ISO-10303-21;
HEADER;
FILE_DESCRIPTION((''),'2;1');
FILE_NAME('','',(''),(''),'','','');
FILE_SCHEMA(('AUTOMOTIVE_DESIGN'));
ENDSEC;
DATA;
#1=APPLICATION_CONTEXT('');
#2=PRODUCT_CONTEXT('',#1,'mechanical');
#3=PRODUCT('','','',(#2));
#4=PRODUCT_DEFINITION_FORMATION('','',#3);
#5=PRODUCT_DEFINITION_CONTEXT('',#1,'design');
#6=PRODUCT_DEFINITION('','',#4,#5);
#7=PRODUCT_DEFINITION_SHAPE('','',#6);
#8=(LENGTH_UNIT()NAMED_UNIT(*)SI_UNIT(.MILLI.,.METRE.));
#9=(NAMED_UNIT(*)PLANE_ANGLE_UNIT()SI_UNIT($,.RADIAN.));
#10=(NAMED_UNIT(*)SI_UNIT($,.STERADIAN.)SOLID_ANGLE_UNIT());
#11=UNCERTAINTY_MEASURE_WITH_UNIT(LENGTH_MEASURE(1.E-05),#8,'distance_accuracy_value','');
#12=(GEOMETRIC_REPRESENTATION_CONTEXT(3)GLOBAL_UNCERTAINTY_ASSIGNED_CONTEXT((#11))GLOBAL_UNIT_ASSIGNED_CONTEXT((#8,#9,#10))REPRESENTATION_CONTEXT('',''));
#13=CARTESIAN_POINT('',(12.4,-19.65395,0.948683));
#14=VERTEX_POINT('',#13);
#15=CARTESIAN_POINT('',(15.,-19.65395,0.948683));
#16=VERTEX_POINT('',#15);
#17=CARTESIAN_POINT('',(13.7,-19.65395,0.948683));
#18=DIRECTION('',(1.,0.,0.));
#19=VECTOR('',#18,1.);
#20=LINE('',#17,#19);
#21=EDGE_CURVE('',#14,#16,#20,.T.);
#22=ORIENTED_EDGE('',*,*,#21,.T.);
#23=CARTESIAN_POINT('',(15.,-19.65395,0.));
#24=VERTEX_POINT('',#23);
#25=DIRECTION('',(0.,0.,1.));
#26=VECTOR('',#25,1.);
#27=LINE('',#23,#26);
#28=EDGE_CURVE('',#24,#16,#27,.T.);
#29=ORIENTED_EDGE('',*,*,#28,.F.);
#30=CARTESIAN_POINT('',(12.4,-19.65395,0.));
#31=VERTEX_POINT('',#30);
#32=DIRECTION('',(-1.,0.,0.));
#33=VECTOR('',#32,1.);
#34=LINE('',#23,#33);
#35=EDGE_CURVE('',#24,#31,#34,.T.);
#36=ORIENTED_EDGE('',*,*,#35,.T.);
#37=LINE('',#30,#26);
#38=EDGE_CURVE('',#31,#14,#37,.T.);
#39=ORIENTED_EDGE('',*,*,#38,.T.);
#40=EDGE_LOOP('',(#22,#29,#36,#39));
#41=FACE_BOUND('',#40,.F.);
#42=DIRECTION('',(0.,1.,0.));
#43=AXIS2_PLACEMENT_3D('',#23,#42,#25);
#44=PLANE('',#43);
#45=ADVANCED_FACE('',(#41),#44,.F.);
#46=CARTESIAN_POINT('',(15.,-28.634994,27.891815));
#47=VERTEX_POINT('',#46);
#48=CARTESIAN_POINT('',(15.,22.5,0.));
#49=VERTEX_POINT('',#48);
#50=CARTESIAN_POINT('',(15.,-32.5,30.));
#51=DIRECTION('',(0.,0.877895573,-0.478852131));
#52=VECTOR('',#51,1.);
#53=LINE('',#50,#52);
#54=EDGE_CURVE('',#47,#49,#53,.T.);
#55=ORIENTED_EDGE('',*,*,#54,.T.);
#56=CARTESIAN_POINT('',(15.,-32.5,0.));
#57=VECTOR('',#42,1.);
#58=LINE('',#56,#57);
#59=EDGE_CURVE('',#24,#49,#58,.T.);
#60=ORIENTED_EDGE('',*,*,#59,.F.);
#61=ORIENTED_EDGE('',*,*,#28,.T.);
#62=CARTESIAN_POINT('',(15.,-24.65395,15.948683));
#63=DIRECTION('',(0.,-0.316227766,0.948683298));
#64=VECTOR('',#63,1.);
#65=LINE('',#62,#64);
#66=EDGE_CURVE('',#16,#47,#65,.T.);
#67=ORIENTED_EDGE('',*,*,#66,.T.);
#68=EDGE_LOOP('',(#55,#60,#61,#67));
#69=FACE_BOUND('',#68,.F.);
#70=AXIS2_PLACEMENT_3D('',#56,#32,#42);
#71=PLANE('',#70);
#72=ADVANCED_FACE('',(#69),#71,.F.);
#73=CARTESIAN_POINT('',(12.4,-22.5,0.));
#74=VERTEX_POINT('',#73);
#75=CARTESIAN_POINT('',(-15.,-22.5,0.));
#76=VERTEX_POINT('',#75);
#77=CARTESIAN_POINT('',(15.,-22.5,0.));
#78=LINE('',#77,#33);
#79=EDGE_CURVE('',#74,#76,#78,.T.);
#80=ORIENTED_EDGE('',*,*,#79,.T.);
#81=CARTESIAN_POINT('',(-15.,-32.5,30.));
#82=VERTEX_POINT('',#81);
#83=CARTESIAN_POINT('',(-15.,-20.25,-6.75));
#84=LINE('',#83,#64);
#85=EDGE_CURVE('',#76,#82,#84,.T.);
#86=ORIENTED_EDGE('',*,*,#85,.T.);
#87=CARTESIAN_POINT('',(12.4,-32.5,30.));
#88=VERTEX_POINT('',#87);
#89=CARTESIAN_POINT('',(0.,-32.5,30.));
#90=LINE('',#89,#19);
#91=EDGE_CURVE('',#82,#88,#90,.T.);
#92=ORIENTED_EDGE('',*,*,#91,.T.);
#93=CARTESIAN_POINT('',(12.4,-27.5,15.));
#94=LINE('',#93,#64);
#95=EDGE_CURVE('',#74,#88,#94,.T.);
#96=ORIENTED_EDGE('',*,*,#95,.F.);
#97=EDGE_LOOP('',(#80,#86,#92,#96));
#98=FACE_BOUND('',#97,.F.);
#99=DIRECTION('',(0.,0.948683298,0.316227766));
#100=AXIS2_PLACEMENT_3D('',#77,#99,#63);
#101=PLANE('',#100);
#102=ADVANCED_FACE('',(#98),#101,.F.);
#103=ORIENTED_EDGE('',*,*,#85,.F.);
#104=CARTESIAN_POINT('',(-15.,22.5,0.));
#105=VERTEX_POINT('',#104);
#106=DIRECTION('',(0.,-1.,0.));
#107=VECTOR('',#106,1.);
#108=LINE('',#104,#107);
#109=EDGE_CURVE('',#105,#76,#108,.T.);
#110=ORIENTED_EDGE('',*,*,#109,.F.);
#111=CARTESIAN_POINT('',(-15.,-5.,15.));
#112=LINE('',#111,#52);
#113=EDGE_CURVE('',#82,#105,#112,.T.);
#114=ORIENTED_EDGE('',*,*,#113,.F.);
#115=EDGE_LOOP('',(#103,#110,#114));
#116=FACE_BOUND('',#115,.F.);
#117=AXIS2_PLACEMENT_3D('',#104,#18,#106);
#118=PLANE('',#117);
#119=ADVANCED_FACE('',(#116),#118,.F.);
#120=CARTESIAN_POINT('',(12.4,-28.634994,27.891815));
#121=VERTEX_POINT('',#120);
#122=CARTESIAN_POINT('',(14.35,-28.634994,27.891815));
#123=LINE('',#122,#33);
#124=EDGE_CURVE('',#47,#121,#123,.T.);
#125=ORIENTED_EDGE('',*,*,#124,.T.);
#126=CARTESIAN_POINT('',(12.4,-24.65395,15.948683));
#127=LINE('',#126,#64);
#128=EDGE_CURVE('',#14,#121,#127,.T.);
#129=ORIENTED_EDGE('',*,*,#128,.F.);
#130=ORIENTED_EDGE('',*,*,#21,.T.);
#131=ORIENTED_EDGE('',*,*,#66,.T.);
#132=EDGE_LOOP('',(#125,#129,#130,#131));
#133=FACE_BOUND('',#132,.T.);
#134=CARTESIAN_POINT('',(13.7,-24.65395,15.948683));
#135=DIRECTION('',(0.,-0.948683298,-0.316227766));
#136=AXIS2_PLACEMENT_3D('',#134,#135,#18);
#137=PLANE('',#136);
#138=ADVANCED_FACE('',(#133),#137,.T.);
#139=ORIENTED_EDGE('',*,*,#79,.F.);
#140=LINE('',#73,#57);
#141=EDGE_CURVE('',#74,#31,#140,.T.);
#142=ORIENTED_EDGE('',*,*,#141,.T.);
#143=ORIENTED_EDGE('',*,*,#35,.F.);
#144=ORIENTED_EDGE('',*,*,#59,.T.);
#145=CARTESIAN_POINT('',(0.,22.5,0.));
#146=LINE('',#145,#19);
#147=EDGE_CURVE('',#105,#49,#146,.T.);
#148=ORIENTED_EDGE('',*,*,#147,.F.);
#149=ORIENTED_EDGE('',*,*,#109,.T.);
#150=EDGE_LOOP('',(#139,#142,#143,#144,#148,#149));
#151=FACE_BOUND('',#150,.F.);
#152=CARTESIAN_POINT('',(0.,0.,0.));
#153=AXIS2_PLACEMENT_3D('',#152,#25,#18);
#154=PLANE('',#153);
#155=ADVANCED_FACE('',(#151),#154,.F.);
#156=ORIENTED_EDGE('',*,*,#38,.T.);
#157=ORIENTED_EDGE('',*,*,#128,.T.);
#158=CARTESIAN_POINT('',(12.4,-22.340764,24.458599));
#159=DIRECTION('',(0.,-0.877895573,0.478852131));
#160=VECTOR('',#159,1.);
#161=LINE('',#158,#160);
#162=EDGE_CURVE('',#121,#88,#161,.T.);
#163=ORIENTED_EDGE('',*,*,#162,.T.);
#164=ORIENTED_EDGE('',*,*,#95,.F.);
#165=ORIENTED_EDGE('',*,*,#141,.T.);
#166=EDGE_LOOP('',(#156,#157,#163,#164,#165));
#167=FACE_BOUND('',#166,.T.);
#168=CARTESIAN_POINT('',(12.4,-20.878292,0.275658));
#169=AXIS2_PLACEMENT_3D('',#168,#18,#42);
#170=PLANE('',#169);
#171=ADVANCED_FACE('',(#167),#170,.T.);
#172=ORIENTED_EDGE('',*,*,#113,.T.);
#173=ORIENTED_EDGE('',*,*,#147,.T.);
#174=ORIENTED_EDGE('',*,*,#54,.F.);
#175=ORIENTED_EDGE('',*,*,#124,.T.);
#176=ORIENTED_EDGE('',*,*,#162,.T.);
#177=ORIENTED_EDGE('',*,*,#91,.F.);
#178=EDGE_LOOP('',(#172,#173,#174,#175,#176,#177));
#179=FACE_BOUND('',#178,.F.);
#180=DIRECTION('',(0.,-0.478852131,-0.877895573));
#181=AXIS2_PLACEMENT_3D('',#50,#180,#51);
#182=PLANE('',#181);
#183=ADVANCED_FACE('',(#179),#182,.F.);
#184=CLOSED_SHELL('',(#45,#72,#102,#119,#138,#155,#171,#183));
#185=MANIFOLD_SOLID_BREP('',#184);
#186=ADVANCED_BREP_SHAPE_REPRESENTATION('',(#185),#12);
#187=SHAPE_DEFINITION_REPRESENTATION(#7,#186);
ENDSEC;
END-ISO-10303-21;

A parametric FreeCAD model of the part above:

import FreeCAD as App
import Part
import Sketcher
from FreeCAD import Vector


def add_polygon(sketch, points):
    """Adds a closed chain of lines whose ends are joined by coincident constraints."""
    first, n = sketch.GeometryCount, len(points)
    for a, b in zip(points, points[1:] + points[:1]):
        sketch.addGeometry(Part.LineSegment(App.Vector(*a, 0), App.Vector(*b, 0)), False)
    for i in range(n):
        sketch.addConstraint(Sketcher.Constraint("Coincident", first + i, 2, first + (i + 1) % n, 1))

doc = App.newDocument("Part")
body = doc.addObject("PartDesign::Body", "Body")

# Sketch on XY plane
sketch1 = body.newObject("Sketcher::SketchObject", "Sketch")
sketch1.AttachmentSupport = (doc.getObject("XY_Plane"), [""])
sketch1.MapMode = "FlatFace"
add_polygon(sketch1, [(-15, 22), (-15, -32), (15, -32), (15, 22)])  # lines 0-3
sketch1.addConstraint([
    Sketcher.Constraint("Vertical", 0),
    Sketcher.Constraint("Horizontal", 1),
    Sketcher.Constraint("Vertical", 2),
    Sketcher.Constraint("Horizontal", 3),
    Sketcher.Constraint("DistanceX", 1, 1, 1, 2, 30.0),
    Sketcher.Constraint("DistanceY", 0, 2, 0, 1, 55.0),
    Sketcher.Constraint("DistanceX", 0, 2, -1, 1, 15.0),
    Sketcher.Constraint("DistanceY", 0, 2, -1, 1, 32.5),
])
pad1 = body.newObject("PartDesign::Pad", "Pad")
pad1.Profile = sketch1
pad1.Length = 30

# Sketch on YZ plane
sketch2 = body.newObject("Sketcher::SketchObject", "Sketch001")
sketch2.AttachmentSupport = (doc.getObject("YZ_Plane"), [""])
sketch2.MapMode = "FlatFace"
sketch2.AttachmentOffset = App.Placement(Vector(0, 0, 15), App.Rotation())
add_polygon(sketch2, [(-32, 0), (-22, 0), (-32, 30)])  # lines 0-2
add_polygon(sketch2, [(22, 30), (-32, 30), (22, 0)])  # lines 3-5
sketch2.addConstraint([
    Sketcher.Constraint("Horizontal", 0),
    Sketcher.Constraint("Vertical", 2),
    Sketcher.Constraint("Horizontal", 3),
    Sketcher.Constraint("Vertical", 5),
    Sketcher.Constraint("Coincident", 3, 2, 1, 2),
    Sketcher.Constraint("Symmetric", 0, 2, 4, 2, -1, 1),
    Sketcher.Constraint("PointOnObject", 0, 2, -1),
    Sketcher.Constraint("DistanceX", 0, 1, 0, 2, 10.0),
    Sketcher.Constraint("DistanceX", 3, 2, 3, 1, 55.0),
    Sketcher.Constraint("DistanceY", 2, 2, 2, 1, 30.0),
])
pocket1 = body.newObject("PartDesign::Pocket", "Pocket")
pocket1.Profile = sketch2
pocket1.Type = "ThroughAll"

# Sketch on an angled plane
sketch3 = body.newObject("Sketcher::SketchObject", "Sketch002")
sketch3.Placement = App.Placement(Vector(0, -20.25, -6.75), App.Rotation(Vector(1, 0, 0), Vector(0, -0.316227766, 0.948683298), Vector(0, -0.948683298, -0.316227766), "ZXY"))
add_polygon(sketch3, [(12.4, 38.7), (12.4, 7.1), (15, 7.1), (15, 38.7)])  # lines 0-3
sketch3.addConstraint([
    Sketcher.Constraint("Vertical", 0),
    Sketcher.Constraint("Horizontal", 1),
    Sketcher.Constraint("Vertical", 2),
    Sketcher.Constraint("Horizontal", 3),
    Sketcher.Constraint("DistanceX", 1, 1, 1, 2, 2.6),
    Sketcher.Constraint("DistanceX", -1, 1, 1, 2, 15.0),
    Sketcher.Constraint("DistanceY", -1, 1, 2, 2, 38.737901),
    Sketcher.Constraint("DistanceY", 0, 2, 0, 1, 31.622777),
])
pocket2 = body.newObject("PartDesign::Pocket", "Pocket001")
pocket2.Profile = sketch3
pocket2.Length = 3

# Sketch on YZ plane
sketch4 = body.newObject("Sketcher::SketchObject", "Sketch003")
sketch4.AttachmentSupport = (doc.getObject("YZ_Plane"), [""])
sketch4.MapMode = "FlatFace"
sketch4.AttachmentOffset = App.Placement(Vector(0, 0, 15), App.Rotation())
add_polygon(sketch4, [(-19.7, 0), (-19.7, 0.9), (-22.5, 0)])  # lines 0-2
sketch4.addConstraint([
    Sketcher.Constraint("Vertical", 0),
    Sketcher.Constraint("Horizontal", 2),
    Sketcher.Constraint("PointOnObject", 1, 2, -1),
    Sketcher.Constraint("Distance", 1, 3.0),
    Sketcher.Constraint("DistanceX", 1, 2, -1, 1, 22.5),
    Sketcher.Constraint("DistanceX", 2, 1, 2, 2, 2.84605),
])
pocket3 = body.newObject("PartDesign::Pocket", "Pocket002")
pocket3.Profile = sketch4
pocket3.Length = 2.6

doc.recompute()
